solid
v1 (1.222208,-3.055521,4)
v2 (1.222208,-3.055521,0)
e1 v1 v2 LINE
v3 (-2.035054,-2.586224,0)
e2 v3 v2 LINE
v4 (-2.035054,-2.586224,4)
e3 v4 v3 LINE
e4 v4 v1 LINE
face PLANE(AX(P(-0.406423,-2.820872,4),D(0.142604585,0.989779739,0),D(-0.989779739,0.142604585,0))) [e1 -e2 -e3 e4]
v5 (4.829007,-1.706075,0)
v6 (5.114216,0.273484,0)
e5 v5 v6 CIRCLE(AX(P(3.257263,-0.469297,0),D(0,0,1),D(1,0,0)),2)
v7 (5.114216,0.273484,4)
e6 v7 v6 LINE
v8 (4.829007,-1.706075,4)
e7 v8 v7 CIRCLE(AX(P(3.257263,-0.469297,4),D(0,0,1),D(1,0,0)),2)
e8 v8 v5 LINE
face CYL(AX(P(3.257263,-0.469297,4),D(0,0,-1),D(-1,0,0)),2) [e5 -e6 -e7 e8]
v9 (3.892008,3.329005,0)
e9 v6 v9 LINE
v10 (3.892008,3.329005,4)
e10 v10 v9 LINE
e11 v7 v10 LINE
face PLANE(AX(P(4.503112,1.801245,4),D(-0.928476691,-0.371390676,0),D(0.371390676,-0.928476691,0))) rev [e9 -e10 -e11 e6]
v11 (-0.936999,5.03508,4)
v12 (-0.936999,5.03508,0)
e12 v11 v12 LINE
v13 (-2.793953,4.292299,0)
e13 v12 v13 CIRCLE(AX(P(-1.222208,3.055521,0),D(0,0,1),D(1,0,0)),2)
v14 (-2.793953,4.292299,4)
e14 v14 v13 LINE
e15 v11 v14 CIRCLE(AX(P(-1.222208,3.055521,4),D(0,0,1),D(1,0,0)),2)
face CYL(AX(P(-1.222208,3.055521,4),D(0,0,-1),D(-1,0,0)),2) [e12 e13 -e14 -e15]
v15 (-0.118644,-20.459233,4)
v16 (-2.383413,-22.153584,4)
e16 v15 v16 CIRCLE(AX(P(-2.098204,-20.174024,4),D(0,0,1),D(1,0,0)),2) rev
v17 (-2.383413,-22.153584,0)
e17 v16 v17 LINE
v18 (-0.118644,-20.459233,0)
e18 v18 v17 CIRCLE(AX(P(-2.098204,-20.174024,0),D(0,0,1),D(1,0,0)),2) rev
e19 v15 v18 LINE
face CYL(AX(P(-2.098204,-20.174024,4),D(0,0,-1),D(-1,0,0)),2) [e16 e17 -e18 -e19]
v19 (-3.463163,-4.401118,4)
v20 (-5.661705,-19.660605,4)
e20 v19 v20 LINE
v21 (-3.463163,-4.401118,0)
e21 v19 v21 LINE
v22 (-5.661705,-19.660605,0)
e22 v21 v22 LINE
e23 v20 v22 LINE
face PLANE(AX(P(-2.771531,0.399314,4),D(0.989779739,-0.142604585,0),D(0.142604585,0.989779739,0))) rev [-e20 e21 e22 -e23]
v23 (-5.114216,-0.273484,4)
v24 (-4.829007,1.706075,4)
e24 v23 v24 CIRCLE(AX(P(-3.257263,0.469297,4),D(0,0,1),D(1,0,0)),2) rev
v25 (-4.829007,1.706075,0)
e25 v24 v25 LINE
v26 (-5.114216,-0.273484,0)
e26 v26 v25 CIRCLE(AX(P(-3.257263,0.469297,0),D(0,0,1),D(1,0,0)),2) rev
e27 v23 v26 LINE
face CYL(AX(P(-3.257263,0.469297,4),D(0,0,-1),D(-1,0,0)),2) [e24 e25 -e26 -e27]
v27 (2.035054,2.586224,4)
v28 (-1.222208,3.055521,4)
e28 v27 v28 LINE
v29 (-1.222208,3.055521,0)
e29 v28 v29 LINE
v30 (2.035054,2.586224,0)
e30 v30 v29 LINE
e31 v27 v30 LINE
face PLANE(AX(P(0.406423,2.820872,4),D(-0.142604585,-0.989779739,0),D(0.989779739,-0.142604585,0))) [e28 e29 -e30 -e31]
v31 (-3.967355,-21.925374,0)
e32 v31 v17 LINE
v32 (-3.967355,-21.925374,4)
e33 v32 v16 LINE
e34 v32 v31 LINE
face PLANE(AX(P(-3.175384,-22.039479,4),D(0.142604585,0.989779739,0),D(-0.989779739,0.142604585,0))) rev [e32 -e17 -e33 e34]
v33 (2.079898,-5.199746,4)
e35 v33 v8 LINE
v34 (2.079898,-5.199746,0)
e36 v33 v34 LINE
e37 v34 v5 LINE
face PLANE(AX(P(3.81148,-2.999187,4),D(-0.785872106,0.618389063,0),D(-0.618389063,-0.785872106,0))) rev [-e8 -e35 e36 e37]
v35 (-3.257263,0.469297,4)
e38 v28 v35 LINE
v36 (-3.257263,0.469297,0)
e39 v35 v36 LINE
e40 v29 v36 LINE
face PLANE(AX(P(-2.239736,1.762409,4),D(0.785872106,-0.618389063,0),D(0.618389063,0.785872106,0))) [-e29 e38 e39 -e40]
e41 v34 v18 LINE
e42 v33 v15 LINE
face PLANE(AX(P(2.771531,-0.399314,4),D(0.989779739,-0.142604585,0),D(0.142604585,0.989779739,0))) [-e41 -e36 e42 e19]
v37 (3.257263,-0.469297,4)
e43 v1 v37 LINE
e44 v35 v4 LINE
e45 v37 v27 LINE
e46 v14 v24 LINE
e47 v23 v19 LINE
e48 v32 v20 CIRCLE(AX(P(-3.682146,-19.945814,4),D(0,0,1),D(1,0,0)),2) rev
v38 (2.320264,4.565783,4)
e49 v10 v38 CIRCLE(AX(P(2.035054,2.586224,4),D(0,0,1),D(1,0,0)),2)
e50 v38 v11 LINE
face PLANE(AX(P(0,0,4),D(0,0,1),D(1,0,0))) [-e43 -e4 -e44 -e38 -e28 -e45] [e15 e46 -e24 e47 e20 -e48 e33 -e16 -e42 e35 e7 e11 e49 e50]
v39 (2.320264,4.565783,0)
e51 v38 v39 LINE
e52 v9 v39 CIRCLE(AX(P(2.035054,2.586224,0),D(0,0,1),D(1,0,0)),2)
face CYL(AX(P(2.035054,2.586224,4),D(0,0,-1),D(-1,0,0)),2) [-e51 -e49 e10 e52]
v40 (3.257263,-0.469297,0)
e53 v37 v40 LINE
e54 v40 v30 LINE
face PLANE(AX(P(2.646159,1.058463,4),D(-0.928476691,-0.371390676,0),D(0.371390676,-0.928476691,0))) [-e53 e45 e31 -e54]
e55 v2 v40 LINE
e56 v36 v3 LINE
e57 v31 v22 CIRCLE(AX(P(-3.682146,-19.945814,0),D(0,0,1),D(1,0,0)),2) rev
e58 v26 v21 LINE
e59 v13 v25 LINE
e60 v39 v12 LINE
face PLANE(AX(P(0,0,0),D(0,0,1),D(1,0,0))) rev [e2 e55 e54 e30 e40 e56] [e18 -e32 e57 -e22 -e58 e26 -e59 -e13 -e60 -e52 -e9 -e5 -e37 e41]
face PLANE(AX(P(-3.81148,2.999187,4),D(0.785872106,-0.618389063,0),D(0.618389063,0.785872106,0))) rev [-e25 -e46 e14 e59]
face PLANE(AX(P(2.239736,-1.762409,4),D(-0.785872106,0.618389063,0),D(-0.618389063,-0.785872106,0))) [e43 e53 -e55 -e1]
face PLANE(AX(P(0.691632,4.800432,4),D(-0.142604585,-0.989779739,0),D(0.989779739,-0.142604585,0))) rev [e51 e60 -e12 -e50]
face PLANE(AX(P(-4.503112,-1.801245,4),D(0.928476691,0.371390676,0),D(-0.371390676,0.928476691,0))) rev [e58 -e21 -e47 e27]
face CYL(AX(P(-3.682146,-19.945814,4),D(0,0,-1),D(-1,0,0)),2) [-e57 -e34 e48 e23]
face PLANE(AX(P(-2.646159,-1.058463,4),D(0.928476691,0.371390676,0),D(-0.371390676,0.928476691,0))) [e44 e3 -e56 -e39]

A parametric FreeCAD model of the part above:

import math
import FreeCAD as App
import Part
import Sketcher


def add_polygon(sketch, points):
    """Adds a closed chain of lines whose ends are joined by coincident constraints."""
    first, n = sketch.GeometryCount, len(points)
    for a, b in zip(points, points[1:] + points[:1]):
        sketch.addGeometry(Part.LineSegment(App.Vector(*a, 0), App.Vector(*b, 0)), False)
    for i in range(n):
        sketch.addConstraint(Sketcher.Constraint("Coincident", first + i, 2, first + (i + 1) % n, 1))

doc = App.newDocument("Part")
body = doc.addObject("PartDesign::Body", "Body")

# Sketch on XY plane
sketch1 = doc.addObject("Sketcher::SketchObject", "Sketch")
body.addObject(sketch1)
sketch1.AttachmentSupport = (doc.XY_Plane, [""])
sketch1.MapMode = "FlatFace"
sketch1.addGeometry(Part.ArcOfCircle(Part.Circle(App.Vector(-3.3, 0.5, 0), App.Vector(0, 0, 1), 2), math.radians(142), math.radians(202)), False)  # 0
sketch1.addGeometry(Part.LineSegment(App.Vector(-5.1, -0.3, 0), App.Vector(-3.5, -4.4, 0)), False)  # 1
sketch1.addGeometry(Part.LineSegment(App.Vector(-3.5, -4.4, 0), App.Vector(-5.7, -19.7, 0)), False)  # 2
sketch1.addGeometry(Part.ArcOfCircle(Part.Circle(App.Vector(-3.7, -19.9, 0), App.Vector(0, 0, 1), 2), math.radians(172), math.radians(262)), False)  # 3
sketch1.addGeometry(Part.LineSegment(App.Vector(-4, -21.9, 0), App.Vector(-2.4, -22.2, 0)), False)  # 4
sketch1.addGeometry(Part.ArcOfCircle(Part.Circle(App.Vector(-2.1, -20.2, 0), App.Vector(0, 0, 1), 2), math.radians(-98), math.radians(-8)), False)  # 5
sketch1.addGeometry(Part.LineSegment(App.Vector(-0.1, -20.5, 0), App.Vector(2.1, -5.2, 0)), False)  # 6
sketch1.addGeometry(Part.LineSegment(App.Vector(2.1, -5.2, 0), App.Vector(4.8, -1.7, 0)), False)  # 7
sketch1.addGeometry(Part.ArcOfCircle(Part.Circle(App.Vector(3.3, -0.5, 0), App.Vector(0, 0, 1), 2), math.radians(-38), math.radians(22)), False)  # 8
sketch1.addGeometry(Part.LineSegment(App.Vector(5.1, 0.3, 0), App.Vector(3.9, 3.3, 0)), False)  # 9
sketch1.addGeometry(Part.ArcOfCircle(Part.Circle(App.Vector(2, 2.6, 0), App.Vector(0, 0, 1), 2), math.radians(22), math.radians(82)), False)  # 10
sketch1.addGeometry(Part.LineSegment(App.Vector(2.3, 4.6, 0), App.Vector(-0.9, 5, 0)), False)  # 11
sketch1.addGeometry(Part.ArcOfCircle(Part.Circle(App.Vector(-1.2, 3.1, 0), App.Vector(0, 0, 1), 2), math.radians(82), math.radians(142)), False)  # 12
sketch1.addGeometry(Part.LineSegment(App.Vector(-2.8, 4.3, 0), App.Vector(-4.8, 1.7, 0)), False)  # 13
add_polygon(sketch1, [(-2, -2.6), (-3.3, 0.5), (-1.2, 3.1), (2, 2.6), (3.3, -0.5), (1.2, -3.1)])  # lines 14-19
sketch1.addConstraint(Sketcher.Constraint("Tangent", 0, 2, 1, 1))
sketch1.addConstraint(Sketcher.Constraint("Coincident", 1, 2, 2, 1))
sketch1.addConstraint(Sketcher.Constraint("Tangent", 2, 2, 3, 1))
sketch1.addConstraint(Sketcher.Constraint("Tangent", 3, 2, 4, 1))
sketch1.addConstraint(Sketcher.Constraint("Tangent", 4, 2, 5, 1))
sketch1.addConstraint(Sketcher.Constraint("Tangent", 5, 2, 6, 1))
sketch1.addConstraint(Sketcher.Constraint("Coincident", 6, 2, 7, 1))
sketch1.addConstraint(Sketcher.Constraint("Tangent", 7, 2, 8, 1))
sketch1.addConstraint(Sketcher.Constraint("Tangent", 8, 2, 9, 1))
sketch1.addConstraint(Sketcher.Constraint("Tangent", 9, 2, 10, 1))
sketch1.addConstraint(Sketcher.Constraint("Tangent", 10, 2, 11, 1))
sketch1.addConstraint(Sketcher.Constraint("Tangent", 11, 2, 12, 1))
sketch1.addConstraint(Sketcher.Constraint("Tangent", 12, 2, 13, 1))
sketch1.addConstraint(Sketcher.Constraint("Tangent", 13, 2, 0, 1))
sketch1.addConstraint(Sketcher.Constraint("Coincident", 14, 2, 0, 3))
sketch1.addConstraint(Sketcher.Constraint("Coincident", 15, 2, 12, 3))
sketch1.addConstraint(Sketcher.Constraint("Coincident", 16, 2, 10, 3))
sketch1.addConstraint(Sketcher.Constraint("Coincident", 17, 2, 8, 3))
sketch1.addConstraint(Sketcher.Constraint("Equal", 0, 3))
sketch1.addConstraint(Sketcher.Constraint("Equal", 3, 5))
sketch1.addConstraint(Sketcher.Constraint("Equal", 5, 8))
sketch1.addConstraint(Sketcher.Constraint("Equal", 8, 10))
sketch1.addConstraint(Sketcher.Constraint("Equal", 10, 12))
sketch1.addConstraint(Sketcher.Constraint("Symmetric", 0, 3, 8, 3, -1, 1))
sketch1.addConstraint(Sketcher.Constraint("Symmetric", 15, 2, 18, 2, -1, 1))
sketch1.addConstraint(Sketcher.Constraint("Symmetric", 16, 2, 19, 2, -1, 1))
sketch1.addConstraint(Sketcher.Constraint("Perpendicular", 2, 4))
sketch1.addConstraint(Sketcher.Constraint("Perpendicular", 4, 6))
sketch1.addConstraint(Sketcher.Constraint("Parallel", 1, 9))
sketch1.addConstraint(Sketcher.Constraint("Perpendicular", 6, 11))
sketch1.addConstraint(Sketcher.Constraint("Parallel", 7, 13))
sketch1.addConstraint(Sketcher.Constraint("Equal", 2, 6))
sketch1.addConstraint(Sketcher.Constraint("Equal", 1, 7))
sketch1.addConstraint(Sketcher.Constraint("Equal", 9, 11))
sketch1.addConstraint(Sketcher.Constraint("Equal", 11, 13))
sketch1.addConstraint(Sketcher.Constraint("Radius", 0, 2.0))
sketch1.addConstraint(Sketcher.Constraint("DistanceX", 11, 2, -1, 1, 0.936999))
sketch1.addConstraint(Sketcher.Constraint("DistanceX", 9, 2, 7, 2, 0.936999))
sketch1.addConstraint(Sketcher.Constraint("DistanceY", 0, 3, 12, 2, 3.823002))
sketch1.addConstraint(Sketcher.Constraint("DistanceX", -1, 1, 6, 2, 2.079898))
sketch1.addConstraint(Sketcher.Constraint("DistanceX", 3, 3, 10, 3, 5.7172))
pad1 = doc.addObject("PartDesign::Pad", "Pad")
body.addObject(pad1)
pad1.Profile = sketch1
pad1.Length = 4

doc.recompute()
